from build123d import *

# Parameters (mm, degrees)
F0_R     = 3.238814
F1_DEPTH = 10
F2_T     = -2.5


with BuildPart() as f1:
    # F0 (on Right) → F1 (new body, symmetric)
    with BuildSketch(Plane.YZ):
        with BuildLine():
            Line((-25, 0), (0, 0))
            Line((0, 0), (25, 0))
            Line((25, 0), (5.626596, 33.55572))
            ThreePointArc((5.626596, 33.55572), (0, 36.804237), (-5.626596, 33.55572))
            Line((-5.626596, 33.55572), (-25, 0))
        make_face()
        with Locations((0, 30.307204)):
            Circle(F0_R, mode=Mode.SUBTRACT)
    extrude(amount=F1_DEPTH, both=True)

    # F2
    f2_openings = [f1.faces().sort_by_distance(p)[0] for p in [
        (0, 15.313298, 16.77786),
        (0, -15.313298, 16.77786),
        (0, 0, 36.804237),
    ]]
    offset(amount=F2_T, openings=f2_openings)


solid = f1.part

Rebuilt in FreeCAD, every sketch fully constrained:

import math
import FreeCAD as App
import Part
import Sketcher
from FreeCAD import Vector
Q = App.Units.Quantity


def faces_at(feature, points):
    """Names of the faces that lie closest to the given points."""
    faces = feature.Shape.Faces
    near = lambda p: min(range(len(faces)), key=lambda i: faces[i].distToShape(Part.Vertex(*p))[0])
    return sorted({f"Face{near(p) + 1}" for p in points})

doc = App.newDocument("Part")
body = doc.addObject("PartDesign::Body", "Body")

sketch1 = body.newObject("Sketcher::SketchObject", "Sketch")
sketch1.AttachmentSupport = (doc.getObject("YZ_Plane"), [""])
sketch1.MapMode = "FlatFace"
sketch1.addGeometry(Part.LineSegment(Vector(-25, 0, 0), Vector(25, 0, 0)), False)
sketch1.addGeometry(Part.LineSegment(Vector(25, 0, 0), Vector(5.6, 33.6, 0)), False)
sketch1.addGeometry(Part.ArcOfCircle(Part.Circle(Vector(0, 30.3, 0), Vector(0, 0, 1), 6.5), math.radians(30), math.radians(150)), False)
sketch1.addGeometry(Part.LineSegment(Vector(-5.6, 33.6, 0), Vector(-25, 0, 0)), False)
sketch1.addGeometry(Part.Circle(Vector(0, 30.3, 0), Vector(0, 0, 1), 3.2), False)
sketch1.addConstraint(Sketcher.Constraint("Coincident", 0, 2, 1, 1))
sketch1.addConstraint(Sketcher.Constraint("Tangent", 1, 2, 2, 1))
sketch1.addConstraint(Sketcher.Constraint("Tangent", 2, 2, 3, 1))
sketch1.addConstraint(Sketcher.Constraint("Coincident", 3, 2, 0, 1))
sketch1.addConstraint(Sketcher.Constraint("Horizontal", 0))
sketch1.addConstraint(Sketcher.Constraint("Coincident", 4, 3, 2, 3))
sketch1.addConstraint(Sketcher.Constraint("Symmetric", 0, 2, 3, 2, -1, 1))
sketch1.addConstraint(Sketcher.Constraint("PointOnObject", 2, 3, -2))
sketch1.addConstraint(Sketcher.Constraint("DistanceX", 0, 1, 0, 2, 50.0))
sketch1.addConstraint(Sketcher.Constraint("Angle", 1, Q("120 deg")))
sketch1.addConstraint(Sketcher.Constraint("Diameter", 4, 6.477628))
sketch1.addConstraint(Sketcher.Constraint("Radius", 2, 6.497033))
pad1 = body.newObject("PartDesign::Pad", "Pad")
pad1.Profile = sketch1
pad1.Length = 20
pad1.Midplane = True
doc.recompute()

thickness = body.newObject("PartDesign::Thickness", "Thickness")
thickness.Base = (pad1, faces_at(pad1, [(0, 15.313, 16.778), (0, -15.313, 16.778), (0, 0, 36.804)]))
thickness.Value = 2.5
thickness.Reversed = True
thickness.Join = "Arc"

doc.recompute()
